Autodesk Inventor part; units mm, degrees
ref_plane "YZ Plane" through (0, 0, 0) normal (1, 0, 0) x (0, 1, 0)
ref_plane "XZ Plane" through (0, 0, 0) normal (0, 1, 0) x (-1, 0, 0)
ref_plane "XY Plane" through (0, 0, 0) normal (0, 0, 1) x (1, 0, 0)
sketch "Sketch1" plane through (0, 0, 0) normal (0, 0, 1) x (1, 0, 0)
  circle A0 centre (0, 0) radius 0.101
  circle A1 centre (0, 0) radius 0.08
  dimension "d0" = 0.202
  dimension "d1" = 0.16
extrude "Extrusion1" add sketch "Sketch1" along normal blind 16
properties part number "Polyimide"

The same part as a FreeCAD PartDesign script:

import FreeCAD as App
import Part
import Sketcher
Q = App.Units.Quantity

doc = App.newDocument("Part")
body = doc.addObject("PartDesign::Body", "Body")

sketch1 = doc.addObject("Sketcher::SketchObject", "Sketch")
body.addObject(sketch1)
sketch1.AttachmentSupport = (doc.XY_Plane, [""])
sketch1.MapMode = "FlatFace"
sketch1.addGeometry([
    Part.Circle(App.Vector(0, 0, 0), App.Vector(0, 0, 1), 0.1),
    Part.Circle(App.Vector(0, 0, 0), App.Vector(0, 0, 1), 0.08),
], False)
sketch1.addConstraint([
    Sketcher.Constraint("Coincident", 0, 3, -1, 1),
    Sketcher.Constraint("Coincident", 1, 3, -1, 1),
    Sketcher.Constraint("Diameter", 1, Q("0.16 mm")),
    Sketcher.Constraint("Diameter", 0, Q("0.202 mm")),
])
pad1 = doc.addObject("PartDesign::Pad", "Pad")
body.addObject(pad1)
pad1.Profile = sketch1
pad1.Length = 16

doc.recompute()
